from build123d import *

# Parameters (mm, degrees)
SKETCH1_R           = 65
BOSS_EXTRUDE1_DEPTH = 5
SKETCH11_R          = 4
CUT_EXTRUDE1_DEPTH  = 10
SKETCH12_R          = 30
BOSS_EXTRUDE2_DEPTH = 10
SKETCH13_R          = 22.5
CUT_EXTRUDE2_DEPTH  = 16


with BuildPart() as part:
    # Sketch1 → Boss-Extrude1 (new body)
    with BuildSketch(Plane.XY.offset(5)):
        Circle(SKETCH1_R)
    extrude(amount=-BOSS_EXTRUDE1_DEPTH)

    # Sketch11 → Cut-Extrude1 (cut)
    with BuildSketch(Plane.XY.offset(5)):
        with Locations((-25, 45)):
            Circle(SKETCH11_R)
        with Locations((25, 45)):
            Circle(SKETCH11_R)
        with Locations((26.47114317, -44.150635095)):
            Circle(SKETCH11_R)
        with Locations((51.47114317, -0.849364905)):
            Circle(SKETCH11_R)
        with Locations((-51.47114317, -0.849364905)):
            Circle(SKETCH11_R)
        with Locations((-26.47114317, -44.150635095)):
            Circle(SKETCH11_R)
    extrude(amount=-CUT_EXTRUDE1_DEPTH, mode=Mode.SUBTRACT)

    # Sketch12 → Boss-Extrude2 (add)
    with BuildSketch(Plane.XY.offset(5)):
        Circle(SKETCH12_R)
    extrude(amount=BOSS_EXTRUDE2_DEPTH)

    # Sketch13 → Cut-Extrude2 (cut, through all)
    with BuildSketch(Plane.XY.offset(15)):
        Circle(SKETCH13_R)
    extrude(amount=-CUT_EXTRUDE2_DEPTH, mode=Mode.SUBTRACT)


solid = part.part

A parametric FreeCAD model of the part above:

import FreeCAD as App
import Part
import Sketcher

V = App.Vector

doc = App.newDocument("Part")
body = doc.addObject("PartDesign::Body", "Body")

sketch1 = body.newObject("Sketcher::SketchObject", "Sketch")
sketch1.AttachmentSupport = (doc.getObject("XY_Plane"), [""])
sketch1.MapMode = "FlatFace"
sketch1.AttachmentOffset = App.Placement(V(0, 0, 5), App.Rotation())
sketch1.addGeometry(Part.Circle(V(0, 0, 0), V(0, 0, 1), 65), False)
sketch1.addConstraint([
    Sketcher.Constraint("Coincident", 0, 3, -1, 1),
    Sketcher.Constraint("Diameter", 0, 130.0),
])
pad1 = body.newObject("PartDesign::Pad", "Pad")
pad1.Profile = sketch1
pad1.Length = 5
pad1.Reversed = True

sketch2 = body.newObject("Sketcher::SketchObject", "Sketch001")
sketch2.AttachmentSupport = (doc.getObject("XY_Plane"), [""])
sketch2.MapMode = "FlatFace"
sketch2.AttachmentOffset = App.Placement(V(0, 0, 5), App.Rotation())
sketch2.addGeometry([
    Part.Circle(V(-25, 45, 0), V(0, 0, 1), 4),
    Part.Circle(V(25, 45, 0), V(0, 0, 1), 4),
    Part.Circle(V(26.471143, -44.150635, 0), V(0, 0, 1), 4),
    Part.Circle(V(51.471143, -0.849365, 0), V(0, 0, 1), 4),
    Part.Circle(V(-51.471143, -0.849365, 0), V(0, 0, 1), 4),
    Part.Circle(V(-26.471143, -44.150635, 0), V(0, 0, 1), 4),
], False)
sketch2.addConstraint([
    Sketcher.Constraint("Equal", 0, 1),
    Sketcher.Constraint("Equal", 1, 2),
    Sketcher.Constraint("Equal", 2, 3),
    Sketcher.Constraint("Equal", 3, 4),
    Sketcher.Constraint("Equal", 4, 5),
    Sketcher.Constraint("Symmetric", 0, 3, 1, 3, -2),
    Sketcher.Constraint("Symmetric", 3, 3, 4, 3, -2),
    Sketcher.Constraint("Symmetric", 2, 3, 5, 3, -2),
    Sketcher.Constraint("Diameter", 0, 8.0),
    Sketcher.Constraint("DistanceX", 0, 3, -1, 1, 25.0),
    Sketcher.Constraint("DistanceY", -1, 1, 0, 3, 45.0),
    Sketcher.Constraint("DistanceX", 2, 3, 3, 3, 25.0),
    Sketcher.Constraint("DistanceY", 2, 3, 3, 3, 43.30127),
    Sketcher.Constraint("DistanceX", -1, 1, 2, 3, 26.471143),
    Sketcher.Constraint("DistanceY", 2, 3, -1, 1, 44.150635),
])
pocket1 = body.newObject("PartDesign::Pocket", "Pocket")
pocket1.Profile = sketch2
pocket1.Length = 10

sketch3 = body.newObject("Sketcher::SketchObject", "Sketch002")
sketch3.AttachmentSupport = (doc.getObject("XY_Plane"), [""])
sketch3.MapMode = "FlatFace"
sketch3.AttachmentOffset = App.Placement(V(0, 0, 5), App.Rotation())
sketch3.addGeometry(Part.Circle(V(0, 0, 0), V(0, 0, 1), 30), False)
sketch3.addConstraint([
    Sketcher.Constraint("Coincident", 0, 3, -1, 1),
    Sketcher.Constraint("Diameter", 0, 60.0),
])
pad2 = body.newObject("PartDesign::Pad", "Pad001")
pad2.Profile = sketch3
pad2.Length = 10

sketch4 = body.newObject("Sketcher::SketchObject", "Sketch003")
sketch4.AttachmentSupport = (doc.getObject("XY_Plane"), [""])
sketch4.MapMode = "FlatFace"
sketch4.AttachmentOffset = App.Placement(V(0, 0, 15), App.Rotation())
sketch4.addGeometry(Part.Circle(V(0, 0, 0), V(0, 0, 1), 22.5), False)
sketch4.addConstraint([
    Sketcher.Constraint("Coincident", 0, 3, -1, 1),
    Sketcher.Constraint("Diameter", 0, 45.0),
])
pocket2 = body.newObject("PartDesign::Pocket", "Pocket001")
pocket2.Profile = sketch4
pocket2.Type = "ThroughAll"

doc.recompute()
